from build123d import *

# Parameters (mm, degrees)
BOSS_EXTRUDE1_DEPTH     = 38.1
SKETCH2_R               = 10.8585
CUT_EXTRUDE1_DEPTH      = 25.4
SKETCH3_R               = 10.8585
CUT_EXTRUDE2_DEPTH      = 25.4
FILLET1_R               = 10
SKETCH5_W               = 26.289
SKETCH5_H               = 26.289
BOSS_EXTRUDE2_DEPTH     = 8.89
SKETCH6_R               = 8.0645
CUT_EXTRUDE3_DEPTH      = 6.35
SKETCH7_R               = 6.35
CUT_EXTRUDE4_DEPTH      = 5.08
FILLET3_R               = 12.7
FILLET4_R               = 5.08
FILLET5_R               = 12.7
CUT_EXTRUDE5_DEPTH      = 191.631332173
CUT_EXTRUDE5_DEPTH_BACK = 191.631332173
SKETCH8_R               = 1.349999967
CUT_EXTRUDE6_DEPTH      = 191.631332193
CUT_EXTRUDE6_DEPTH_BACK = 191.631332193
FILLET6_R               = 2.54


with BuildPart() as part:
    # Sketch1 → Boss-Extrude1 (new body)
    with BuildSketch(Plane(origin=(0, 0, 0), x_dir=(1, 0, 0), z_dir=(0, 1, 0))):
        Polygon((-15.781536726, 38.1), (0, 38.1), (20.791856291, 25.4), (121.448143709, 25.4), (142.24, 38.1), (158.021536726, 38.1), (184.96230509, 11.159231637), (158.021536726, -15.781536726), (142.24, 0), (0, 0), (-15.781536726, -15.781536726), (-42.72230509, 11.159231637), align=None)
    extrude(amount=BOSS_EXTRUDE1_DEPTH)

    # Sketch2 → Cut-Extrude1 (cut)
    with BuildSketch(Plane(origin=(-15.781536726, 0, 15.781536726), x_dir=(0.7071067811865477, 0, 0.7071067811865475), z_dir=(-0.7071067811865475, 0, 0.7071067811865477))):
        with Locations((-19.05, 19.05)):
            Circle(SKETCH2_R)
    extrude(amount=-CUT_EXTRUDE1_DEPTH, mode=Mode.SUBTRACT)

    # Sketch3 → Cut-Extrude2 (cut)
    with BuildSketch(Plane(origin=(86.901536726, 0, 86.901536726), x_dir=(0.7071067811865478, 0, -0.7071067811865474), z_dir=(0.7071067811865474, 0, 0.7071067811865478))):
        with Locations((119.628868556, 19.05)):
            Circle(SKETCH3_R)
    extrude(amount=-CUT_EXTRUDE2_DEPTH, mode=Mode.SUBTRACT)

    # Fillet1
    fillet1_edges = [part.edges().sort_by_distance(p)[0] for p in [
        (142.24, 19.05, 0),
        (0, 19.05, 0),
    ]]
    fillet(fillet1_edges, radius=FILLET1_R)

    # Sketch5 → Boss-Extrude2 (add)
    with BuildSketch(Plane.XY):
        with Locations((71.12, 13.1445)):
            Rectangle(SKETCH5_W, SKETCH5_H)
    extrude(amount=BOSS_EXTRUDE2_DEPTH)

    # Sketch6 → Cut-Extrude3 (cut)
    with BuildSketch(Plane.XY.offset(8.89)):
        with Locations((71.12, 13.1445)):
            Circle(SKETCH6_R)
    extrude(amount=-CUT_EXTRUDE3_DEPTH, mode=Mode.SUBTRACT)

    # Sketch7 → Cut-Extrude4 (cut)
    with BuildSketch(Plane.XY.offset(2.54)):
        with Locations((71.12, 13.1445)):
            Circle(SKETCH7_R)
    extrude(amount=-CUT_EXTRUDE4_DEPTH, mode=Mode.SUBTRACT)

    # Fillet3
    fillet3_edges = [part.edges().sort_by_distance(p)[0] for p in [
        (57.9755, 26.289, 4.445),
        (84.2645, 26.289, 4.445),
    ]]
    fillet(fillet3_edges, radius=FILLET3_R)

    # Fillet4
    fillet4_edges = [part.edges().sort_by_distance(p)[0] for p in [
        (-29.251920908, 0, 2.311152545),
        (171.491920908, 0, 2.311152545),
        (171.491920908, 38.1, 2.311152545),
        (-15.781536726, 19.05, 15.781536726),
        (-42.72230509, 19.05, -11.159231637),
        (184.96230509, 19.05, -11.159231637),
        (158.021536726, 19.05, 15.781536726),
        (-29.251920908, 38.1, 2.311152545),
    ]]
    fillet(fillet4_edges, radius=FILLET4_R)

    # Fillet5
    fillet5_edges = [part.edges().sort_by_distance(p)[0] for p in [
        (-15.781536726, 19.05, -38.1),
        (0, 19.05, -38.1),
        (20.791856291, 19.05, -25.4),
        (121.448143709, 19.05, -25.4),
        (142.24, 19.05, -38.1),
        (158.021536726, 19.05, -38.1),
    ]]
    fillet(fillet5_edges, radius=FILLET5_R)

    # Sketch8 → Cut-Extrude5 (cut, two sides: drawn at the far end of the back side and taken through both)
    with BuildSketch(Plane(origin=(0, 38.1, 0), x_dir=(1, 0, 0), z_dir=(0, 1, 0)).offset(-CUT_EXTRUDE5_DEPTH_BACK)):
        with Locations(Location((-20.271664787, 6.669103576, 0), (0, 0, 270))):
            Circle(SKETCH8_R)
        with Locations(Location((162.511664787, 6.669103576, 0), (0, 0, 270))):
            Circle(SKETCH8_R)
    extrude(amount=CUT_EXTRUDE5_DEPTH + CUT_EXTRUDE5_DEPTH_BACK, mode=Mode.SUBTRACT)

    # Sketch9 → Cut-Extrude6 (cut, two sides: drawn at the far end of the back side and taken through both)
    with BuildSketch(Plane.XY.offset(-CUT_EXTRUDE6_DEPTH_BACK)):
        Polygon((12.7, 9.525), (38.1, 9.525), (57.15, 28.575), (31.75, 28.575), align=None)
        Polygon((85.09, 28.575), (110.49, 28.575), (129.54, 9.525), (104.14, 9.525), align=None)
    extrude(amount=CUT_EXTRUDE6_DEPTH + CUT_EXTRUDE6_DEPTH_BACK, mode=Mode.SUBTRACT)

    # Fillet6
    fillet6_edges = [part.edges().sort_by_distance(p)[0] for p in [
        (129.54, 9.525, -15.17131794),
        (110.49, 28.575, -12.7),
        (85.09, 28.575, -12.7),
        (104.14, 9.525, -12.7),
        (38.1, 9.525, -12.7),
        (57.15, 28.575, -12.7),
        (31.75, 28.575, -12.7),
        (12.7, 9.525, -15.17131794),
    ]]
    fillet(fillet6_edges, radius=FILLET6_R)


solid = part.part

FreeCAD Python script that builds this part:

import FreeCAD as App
import Part
import Sketcher
Q = App.Units.Quantity


def edges_at(feature, points):
    """Names of the edges that pass closest to the given points."""
    edges = feature.Shape.Edges
    near = lambda p: min(range(len(edges)), key=lambda i: edges[i].distToShape(Part.Vertex(*p))[0])
    return sorted({f"Edge{near(p) + 1}" for p in points})


def add_polygon(sketch, points):
    """Adds a closed chain of lines whose ends are joined by coincident constraints."""
    first, n = sketch.GeometryCount, len(points)
    for a, b in zip(points, points[1:] + points[:1]):
        sketch.addGeometry(Part.LineSegment(App.Vector(*a, 0), App.Vector(*b, 0)), False)
    for i in range(n):
        sketch.addConstraint(Sketcher.Constraint("Coincident", first + i, 2, first + (i + 1) % n, 1))

doc = App.newDocument("Part")
body = doc.addObject("PartDesign::Body", "Body")

sketch1 = body.newObject("Sketcher::SketchObject", "Sketch")
sketch1.AttachmentSupport = (doc.getObject("XZ_Plane"), [""])
sketch1.MapMode = "FlatFace"
add_polygon(sketch1, [(0, -38), (-16, -38), (-43, -11), (-16, 16), (0, 0), (142, 0), (158, 16), (185, -11), (158, -38), (142, -38), (121, -25), (21, -25)])
sketch1.addConstraint(Sketcher.Constraint("Horizontal", 0))
sketch1.addConstraint(Sketcher.Constraint("Horizontal", 4))
sketch1.addConstraint(Sketcher.Constraint("Horizontal", 8))
sketch1.addConstraint(Sketcher.Constraint("Horizontal", 10))
sketch1.addConstraint(Sketcher.Constraint("Coincident", 3, 2, -1, 1))
sketch1.addConstraint(Sketcher.Constraint("PointOnObject", 11, 2, -2))
sketch1.addConstraint(Sketcher.Constraint("Perpendicular", 1, 2))
sketch1.addConstraint(Sketcher.Constraint("Perpendicular", 2, 3))
sketch1.addConstraint(Sketcher.Constraint("Perpendicular", 3, 5))
sketch1.addConstraint(Sketcher.Constraint("Perpendicular", 5, 6))
sketch1.addConstraint(Sketcher.Constraint("Perpendicular", 6, 7))
sketch1.addConstraint(Sketcher.Constraint("Horizontal", 2, 2, 5, 2))
sketch1.addConstraint(Sketcher.Constraint("Horizontal", 1, 2, 6, 2))
sketch1.addConstraint(Sketcher.Constraint("Horizontal", 0, 2, 7, 2))
sketch1.addConstraint(Sketcher.Constraint("Vertical", 0, 2, 2, 2))
sketch1.addConstraint(Sketcher.Constraint("Vertical", 5, 2, 7, 2))
sketch1.addConstraint(Sketcher.Constraint("Vertical", 4, 2, 8, 2))
sketch1.addConstraint(Sketcher.Constraint("Equal", 9, 11))
sketch1.addConstraint(Sketcher.Constraint("DistanceX", 4, 1, 4, 2, Q("5.6 in")))
sketch1.addConstraint(Sketcher.Constraint("DistanceY", 9, 2, -1, 1, Q("1 in")))
sketch1.addConstraint(Sketcher.Constraint("Distance", 1, Q("1.5 in")))
sketch1.addConstraint(Sketcher.Constraint("DistanceY", 0, 2, -1, 1, Q("1.5 in")))
sketch1.addConstraint(Sketcher.Constraint("Distance", 9, 24.363729))
pad1 = body.newObject("PartDesign::Pad", "Pad")
pad1.Profile = sketch1
pad1.Length = Q("1.5 in")
pad1.Reversed = True

sketch2 = body.newObject("Sketcher::SketchObject", "Sketch001")
sketch2.Placement = App.Placement(App.Vector(-15.781537, 0, 15.781537), App.Rotation(App.Vector(0.707106781, 0, 0.707106781), App.Vector(0, 0.999999999, 0), App.Vector(-0.707106781, 0, 0.707106781), "ZXY"))
sketch2.addGeometry(Part.Circle(App.Vector(-19, 19, 0), App.Vector(0, 0, 1), 11), False)
sketch2.addConstraint(Sketcher.Constraint("Diameter", 0, Q("0.855 in")))
sketch2.addConstraint(Sketcher.Constraint("DistanceX", 0, 3, -1, 1, Q("0.75 in")))
sketch2.addConstraint(Sketcher.Constraint("DistanceY", -1, 1, 0, 3, Q("0.75 in")))
pocket1 = body.newObject("PartDesign::Pocket", "Pocket")
pocket1.Profile = sketch2
pocket1.Length = Q("1 in")

sketch3 = body.newObject("Sketcher::SketchObject", "Sketch002")
sketch3.Placement = App.Placement(App.Vector(86.901537, 0, 86.901537), App.Rotation(App.Vector(0.707106781, 0, -0.707106781), App.Vector(0, 0.999999999, 0), App.Vector(0.707106781, 0, 0.707106781), "ZXY"))
sketch3.addGeometry(Part.Circle(App.Vector(120, 19, 0), App.Vector(0, 0, 1), 11), False)
sketch3.addConstraint(Sketcher.Constraint("Diameter", 0, Q("0.855 in")))
sketch3.addConstraint(Sketcher.Constraint("DistanceY", -1, 1, 0, 3, Q("0.75 in")))
sketch3.addConstraint(Sketcher.Constraint("DistanceX", -1, 1, 0, 3, 119.628868))
pocket2 = body.newObject("PartDesign::Pocket", "Pocket001")
pocket2.Profile = sketch3
pocket2.Length = Q("1 in")
doc.recompute()

fillet = body.newObject("PartDesign::Fillet", "Fillet")
fillet.Base = (pocket2, edges_at(pocket2, [(142.24, 19.05, 0), (0, 19.05, 0)]))
fillet.Radius = 10

sketch4 = body.newObject("Sketcher::SketchObject", "Sketch003")
sketch4.AttachmentSupport = (doc.getObject("XY_Plane"), [""])
sketch4.MapMode = "FlatFace"
add_polygon(sketch4, [(58, 26), (58, 0), (84, 0), (84, 26)])
sketch4.addConstraint(Sketcher.Constraint("Vertical", 0))
sketch4.addConstraint(Sketcher.Constraint("Horizontal", 1))
sketch4.addConstraint(Sketcher.Constraint("Vertical", 2))
sketch4.addConstraint(Sketcher.Constraint("Horizontal", 3))
sketch4.addConstraint(Sketcher.Constraint("PointOnObject", 0, 2, -1))
sketch4.addConstraint(Sketcher.Constraint("Equal", 3, 0))
sketch4.addConstraint(Sketcher.Constraint("DistanceX", 1, 1, 1, 2, Q("1.035 in")))
sketch4.addConstraint(Sketcher.Constraint("DistanceX", -1, 1, 0, 2, Q("2.2825 in")))
pad2 = body.newObject("PartDesign::Pad", "Pad001")
pad2.Profile = sketch4
pad2.Length = Q("0.35 in")

sketch5 = body.newObject("Sketcher::SketchObject", "Sketch004")
sketch5.AttachmentSupport = (doc.getObject("XY_Plane"), [""])
sketch5.MapMode = "FlatFace"
sketch5.AttachmentOffset = App.Placement(App.Vector(0, 0, 0.35 * 25.4), App.Rotation())
sketch5.addGeometry(Part.Circle(App.Vector(71, 13, 0), App.Vector(0, 0, 1), 8), False)
sketch5.addConstraint(Sketcher.Constraint("Diameter", 0, Q("0.635 in")))
sketch5.addConstraint(Sketcher.Constraint("DistanceX", -1, 1, 0, 3, Q("2.8 in")))
sketch5.addConstraint(Sketcher.Constraint("DistanceY", -1, 1, 0, 3, Q("0.5175 in")))
pocket3 = body.newObject("PartDesign::Pocket", "Pocket002")
pocket3.Profile = sketch5
pocket3.Length = Q("0.25 in")

sketch6 = body.newObject("Sketcher::SketchObject", "Sketch005")
sketch6.AttachmentSupport = (doc.getObject("XY_Plane"), [""])
sketch6.MapMode = "FlatFace"
sketch6.AttachmentOffset = App.Placement(App.Vector(0, 0, 0.1 * 25.4), App.Rotation())
sketch6.addGeometry(Part.Circle(App.Vector(71, 13, 0), App.Vector(0, 0, 1), 6), False)
sketch6.addConstraint(Sketcher.Constraint("Diameter", 0, Q("0.5 in")))
sketch6.addConstraint(Sketcher.Constraint("DistanceX", -1, 1, 0, 3, Q("2.8 in")))
sketch6.addConstraint(Sketcher.Constraint("DistanceY", -1, 1, 0, 3, Q("0.5175 in")))
pocket4 = body.newObject("PartDesign::Pocket", "Pocket003")
pocket4.Profile = sketch6
pocket4.Length = Q("0.2 in")
doc.recompute()

fillet2 = body.newObject("PartDesign::Fillet", "Fillet001")
fillet2.Base = (pocket4, edges_at(pocket4, [(57.975, 26.289, 4.445), (84.264, 26.289, 4.445)]))
fillet2.Radius = Q("0.5 in")
doc.recompute()

fillet3 = body.newObject("PartDesign::Fillet", "Fillet002")
fillet3.Base = (fillet2, edges_at(fillet2, [
    (-29.252, 0, 2.311),
    (171.492, 0, 2.311),
    (171.492, 38.1, 2.311),
    (-15.782, 19.05, 15.782),
    (-42.722, 19.05, -11.159),
    (184.962, 19.05, -11.159),
    (158.022, 19.05, 15.782),
    (-29.252, 38.1, 2.311),
]))
fillet3.Radius = Q("0.2 in")
doc.recompute()

fillet4 = body.newObject("PartDesign::Fillet", "Fillet003")
fillet4.Base = (fillet3, edges_at(fillet3, [
    (-15.782, 19.05, -38.1),
    (0, 19.05, -38.1),
    (20.792, 19.05, -25.4),
    (121.448, 19.05, -25.4),
    (142.24, 19.05, -38.1),
    (158.022, 19.05, -38.1),
]))
fillet4.Radius = Q("0.5 in")

sketch7 = body.newObject("Sketcher::SketchObject", "Sketch006")
sketch7.AttachmentSupport = (doc.getObject("XZ_Plane"), [""])
sketch7.MapMode = "FlatFace"
sketch7.AttachmentOffset = App.Placement(App.Vector(0, 0, -1.5 * 25.4), App.Rotation())
sketch7.addGeometry(Part.Circle(App.Vector(-20.3, -6.7, 0), App.Vector(0, 0, 1), 1.3), False)
sketch7.addGeometry(Part.Circle(App.Vector(162.5, -6.7, 0), App.Vector(0, 0, 1), 1.3), False)
sketch7.addConstraint(Sketcher.Constraint("Equal", 0, 1))
sketch7.addConstraint(Sketcher.Constraint("Horizontal", 0, 3, 1, 3))
sketch7.addConstraint(Sketcher.Constraint("Diameter", 0, 2.7))
sketch7.addConstraint(Sketcher.Constraint("DistanceX", 0, 3, 1, 3, 182.78333))
sketch7.addConstraint(Sketcher.Constraint("DistanceX", 0, 3, -1, 1, 20.271665))
sketch7.addConstraint(Sketcher.Constraint("DistanceY", 0, 3, -1, 1, 6.669104))
pocket5 = body.newObject("PartDesign::Pocket", "Pocket004")
pocket5.Profile = sketch7
pocket5.Type = "ThroughAll"
pocket5.Midplane = True

sketch8 = body.newObject("Sketcher::SketchObject", "Sketch007")
sketch8.AttachmentSupport = (doc.getObject("XY_Plane"), [""])
sketch8.MapMode = "FlatFace"
add_polygon(sketch8, [(13, 10), (38, 10), (57, 29), (32, 29)])
add_polygon(sketch8, [(110, 29), (85, 29), (104, 10), (130, 10)])
sketch8.addConstraint(Sketcher.Constraint("Horizontal", 0))
sketch8.addConstraint(Sketcher.Constraint("Horizontal", 2))
sketch8.addConstraint(Sketcher.Constraint("Horizontal", 4))
sketch8.addConstraint(Sketcher.Constraint("Horizontal", 6))
sketch8.addConstraint(Sketcher.Constraint("Parallel", 1, 3))
sketch8.addConstraint(Sketcher.Constraint("Perpendicular", 3, 5))
sketch8.addConstraint(Sketcher.Constraint("Parallel", 5, 7))
sketch8.addConstraint(Sketcher.Constraint("Horizontal", 2, 2, 4, 2))
sketch8.addConstraint(Sketcher.Constraint("Horizontal", 3, 2, 5, 2))
sketch8.addConstraint(Sketcher.Constraint("Equal", 2, 4))
sketch8.addConstraint(Sketcher.Constraint("Equal", 3, 5))
sketch8.addConstraint(Sketcher.Constraint("DistanceX", 0, 1, 0, 2, Q("1 in")))
sketch8.addConstraint(Sketcher.Constraint("DistanceX", -1, 1, 0, 2, Q("1.5 in")))
sketch8.addConstraint(Sketcher.Constraint("DistanceX", -1, 1, 5, 2, Q("4.1 in")))
sketch8.addConstraint(Sketcher.Constraint("DistanceX", 1, 2, 4, 2, Q("1.1 in")))
sketch8.addConstraint(Sketcher.Constraint("DistanceY", -1, 1, 0, 2, Q("0.375 in")))
pocket6 = body.newObject("PartDesign::Pocket", "Pocket005")
pocket6.Profile = sketch8
pocket6.Type = "ThroughAll"
pocket6.Midplane = True
doc.recompute()

fillet5 = body.newObject("PartDesign::Fillet", "Fillet004")
fillet5.Base = (pocket6, edges_at(pocket6, [
    (129.54, 9.525, -15.171),
    (110.49, 28.575, -12.7),
    (85.09, 28.575, -12.7),
    (104.14, 9.525, -12.7),
    (38.1, 9.525, -12.7),
    (57.15, 28.575, -12.7),
    (31.75, 28.575, -12.7),
    (12.7, 9.525, -15.171),
]))
fillet5.Radius = Q("0.1 in")

doc.recompute()
